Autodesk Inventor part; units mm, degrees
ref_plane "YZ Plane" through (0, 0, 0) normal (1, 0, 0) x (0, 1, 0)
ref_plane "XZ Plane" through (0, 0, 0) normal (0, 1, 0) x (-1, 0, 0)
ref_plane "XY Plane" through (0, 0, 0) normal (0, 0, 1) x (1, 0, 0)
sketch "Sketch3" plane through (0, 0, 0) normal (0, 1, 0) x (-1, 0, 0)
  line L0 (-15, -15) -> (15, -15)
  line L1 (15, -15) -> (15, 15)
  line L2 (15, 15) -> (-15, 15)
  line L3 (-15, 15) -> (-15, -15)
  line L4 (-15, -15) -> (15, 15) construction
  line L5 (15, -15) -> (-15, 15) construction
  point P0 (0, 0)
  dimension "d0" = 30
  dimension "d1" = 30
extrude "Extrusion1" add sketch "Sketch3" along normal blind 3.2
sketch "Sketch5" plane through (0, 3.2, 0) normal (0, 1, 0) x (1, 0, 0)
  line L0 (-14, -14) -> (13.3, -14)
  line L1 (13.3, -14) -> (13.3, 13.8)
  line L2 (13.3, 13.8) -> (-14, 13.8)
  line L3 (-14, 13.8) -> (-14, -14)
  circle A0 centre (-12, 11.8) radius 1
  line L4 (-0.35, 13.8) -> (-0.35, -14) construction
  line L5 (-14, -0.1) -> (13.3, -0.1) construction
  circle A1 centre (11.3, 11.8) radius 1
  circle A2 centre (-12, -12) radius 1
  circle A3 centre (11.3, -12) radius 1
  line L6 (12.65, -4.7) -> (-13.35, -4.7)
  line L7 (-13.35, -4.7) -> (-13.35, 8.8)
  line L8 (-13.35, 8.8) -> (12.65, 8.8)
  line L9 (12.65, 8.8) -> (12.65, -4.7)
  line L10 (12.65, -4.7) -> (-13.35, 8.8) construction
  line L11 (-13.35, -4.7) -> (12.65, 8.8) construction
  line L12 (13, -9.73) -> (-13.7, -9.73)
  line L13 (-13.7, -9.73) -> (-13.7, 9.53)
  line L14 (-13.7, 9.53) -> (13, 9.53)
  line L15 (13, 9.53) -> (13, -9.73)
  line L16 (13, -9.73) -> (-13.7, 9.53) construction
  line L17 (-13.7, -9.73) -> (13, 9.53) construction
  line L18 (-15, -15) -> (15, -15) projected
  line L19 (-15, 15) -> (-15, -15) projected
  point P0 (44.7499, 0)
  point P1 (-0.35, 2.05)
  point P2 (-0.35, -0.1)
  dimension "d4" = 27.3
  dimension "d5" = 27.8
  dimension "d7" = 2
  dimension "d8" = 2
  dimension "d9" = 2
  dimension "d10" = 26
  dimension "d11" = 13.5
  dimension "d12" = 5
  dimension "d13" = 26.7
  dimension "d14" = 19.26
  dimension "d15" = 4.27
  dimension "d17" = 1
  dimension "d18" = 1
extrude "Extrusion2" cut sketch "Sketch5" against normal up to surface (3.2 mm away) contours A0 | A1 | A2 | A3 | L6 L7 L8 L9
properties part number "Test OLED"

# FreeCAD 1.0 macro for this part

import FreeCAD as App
import Part
import Sketcher
from FreeCAD import Vector

doc = App.newDocument("Part")
body = doc.addObject("PartDesign::Body", "Body")

# Sketch on XZ plane
sketch1 = body.newObject("Sketcher::SketchObject", "Sketch")
sketch1.AttachmentSupport = (doc.getObject("XZ_Plane"), [""])
sketch1.MapMode = "FlatFace"
sketch1.addGeometry([
    Part.LineSegment(Vector(15, 15, 0), Vector(15, -15, 0)),
    Part.LineSegment(Vector(15, -15, 0), Vector(-15, -15, 0)),
    Part.LineSegment(Vector(-15, -15, 0), Vector(-15, 15, 0)),
    Part.LineSegment(Vector(-15, 15, 0), Vector(15, 15, 0)),
], False)
sketch1.addConstraint([
    Sketcher.Constraint("Coincident", 0, 2, 1, 1),
    Sketcher.Constraint("Coincident", 1, 2, 2, 1),
    Sketcher.Constraint("Coincident", 2, 2, 3, 1),
    Sketcher.Constraint("Coincident", 3, 2, 0, 1),
    Sketcher.Constraint("Vertical", 0),
    Sketcher.Constraint("Horizontal", 1),
    Sketcher.Constraint("Vertical", 2),
    Sketcher.Constraint("Horizontal", 3),
    Sketcher.Constraint("Symmetric", 0, 2, 2, 2, -1, 1),
    Sketcher.Constraint("Equal", 3, 0),
    Sketcher.Constraint("DistanceX", 1, 2, 1, 1, 30.0),
])
pad1 = body.newObject("PartDesign::Pad", "Pad")
pad1.Profile = sketch1
pad1.Length = 3.2
pad1.Reversed = True

# Sketch on XZ plane
sketch2 = body.newObject("Sketcher::SketchObject", "Sketch001")
sketch2.AttachmentSupport = (doc.getObject("XZ_Plane"), [""])
sketch2.MapMode = "FlatFace"
sketch2.AttachmentOffset = App.Placement(Vector(0, 0, -3.2), App.Rotation())
sketch2.addGeometry([
    Part.Circle(Vector(-12, -11.8, 0), Vector(0, 0, 1), 1),  # 0
    Part.Circle(Vector(11.3, -11.8, 0), Vector(0, 0, 1), 1),  # 1
    Part.Circle(Vector(-12, 12, 0), Vector(0, 0, 1), 1),  # 2
    Part.Circle(Vector(11.3, 12, 0), Vector(0, 0, 1), 1),  # 3
    Part.LineSegment(Vector(-13.35, 4.7, 0), Vector(12.65, 4.7, 0)),  # 4
    Part.LineSegment(Vector(12.65, 4.7, 0), Vector(12.65, -8.8, 0)),  # 5
    Part.LineSegment(Vector(12.65, -8.8, 0), Vector(-13.35, -8.8, 0)),  # 6
    Part.LineSegment(Vector(-13.35, -8.8, 0), Vector(-13.35, 4.7, 0)),  # 7
], False)
sketch2.addConstraint([
    Sketcher.Constraint("Coincident", 4, 2, 5, 1),
    Sketcher.Constraint("Coincident", 5, 2, 6, 1),
    Sketcher.Constraint("Coincident", 6, 2, 7, 1),
    Sketcher.Constraint("Coincident", 7, 2, 4, 1),
    Sketcher.Constraint("Horizontal", 4),
    Sketcher.Constraint("Vertical", 5),
    Sketcher.Constraint("Horizontal", 6),
    Sketcher.Constraint("Vertical", 7),
    Sketcher.Constraint("Equal", 0, 1),
    Sketcher.Constraint("Equal", 1, 2),
    Sketcher.Constraint("Equal", 2, 3),
    Sketcher.Constraint("Horizontal", 0, 3, 1, 3),
    Sketcher.Constraint("Horizontal", 2, 3, 3, 3),
    Sketcher.Constraint("Vertical", 0, 3, 2, 3),
    Sketcher.Constraint("Vertical", 1, 3, 3, 3),
    Sketcher.Constraint("Diameter", 0, 2.0),
    Sketcher.Constraint("DistanceX", 4, 1, 4, 2, 26.0),
    Sketcher.Constraint("DistanceY", 5, 2, 5, 1, 13.5),
    Sketcher.Constraint("DistanceX", 0, 3, -1, 1, 12.0),
    Sketcher.Constraint("DistanceY", -1, 1, 2, 3, 12.0),
    Sketcher.Constraint("DistanceY", 1, 3, 5, 2, 3.0),
    Sketcher.Constraint("DistanceY", 0, 3, -1, 1, 11.8),
    Sketcher.Constraint("DistanceX", -1, 1, 1, 3, 11.3),
    Sketcher.Constraint("DistanceX", -1, 1, 4, 2, 12.65),
])
pocket1 = body.newObject("PartDesign::Pocket", "Pocket")
pocket1.Profile = sketch2
pocket1.Length = 3.2
pocket1.Reversed = True

doc.recompute()
